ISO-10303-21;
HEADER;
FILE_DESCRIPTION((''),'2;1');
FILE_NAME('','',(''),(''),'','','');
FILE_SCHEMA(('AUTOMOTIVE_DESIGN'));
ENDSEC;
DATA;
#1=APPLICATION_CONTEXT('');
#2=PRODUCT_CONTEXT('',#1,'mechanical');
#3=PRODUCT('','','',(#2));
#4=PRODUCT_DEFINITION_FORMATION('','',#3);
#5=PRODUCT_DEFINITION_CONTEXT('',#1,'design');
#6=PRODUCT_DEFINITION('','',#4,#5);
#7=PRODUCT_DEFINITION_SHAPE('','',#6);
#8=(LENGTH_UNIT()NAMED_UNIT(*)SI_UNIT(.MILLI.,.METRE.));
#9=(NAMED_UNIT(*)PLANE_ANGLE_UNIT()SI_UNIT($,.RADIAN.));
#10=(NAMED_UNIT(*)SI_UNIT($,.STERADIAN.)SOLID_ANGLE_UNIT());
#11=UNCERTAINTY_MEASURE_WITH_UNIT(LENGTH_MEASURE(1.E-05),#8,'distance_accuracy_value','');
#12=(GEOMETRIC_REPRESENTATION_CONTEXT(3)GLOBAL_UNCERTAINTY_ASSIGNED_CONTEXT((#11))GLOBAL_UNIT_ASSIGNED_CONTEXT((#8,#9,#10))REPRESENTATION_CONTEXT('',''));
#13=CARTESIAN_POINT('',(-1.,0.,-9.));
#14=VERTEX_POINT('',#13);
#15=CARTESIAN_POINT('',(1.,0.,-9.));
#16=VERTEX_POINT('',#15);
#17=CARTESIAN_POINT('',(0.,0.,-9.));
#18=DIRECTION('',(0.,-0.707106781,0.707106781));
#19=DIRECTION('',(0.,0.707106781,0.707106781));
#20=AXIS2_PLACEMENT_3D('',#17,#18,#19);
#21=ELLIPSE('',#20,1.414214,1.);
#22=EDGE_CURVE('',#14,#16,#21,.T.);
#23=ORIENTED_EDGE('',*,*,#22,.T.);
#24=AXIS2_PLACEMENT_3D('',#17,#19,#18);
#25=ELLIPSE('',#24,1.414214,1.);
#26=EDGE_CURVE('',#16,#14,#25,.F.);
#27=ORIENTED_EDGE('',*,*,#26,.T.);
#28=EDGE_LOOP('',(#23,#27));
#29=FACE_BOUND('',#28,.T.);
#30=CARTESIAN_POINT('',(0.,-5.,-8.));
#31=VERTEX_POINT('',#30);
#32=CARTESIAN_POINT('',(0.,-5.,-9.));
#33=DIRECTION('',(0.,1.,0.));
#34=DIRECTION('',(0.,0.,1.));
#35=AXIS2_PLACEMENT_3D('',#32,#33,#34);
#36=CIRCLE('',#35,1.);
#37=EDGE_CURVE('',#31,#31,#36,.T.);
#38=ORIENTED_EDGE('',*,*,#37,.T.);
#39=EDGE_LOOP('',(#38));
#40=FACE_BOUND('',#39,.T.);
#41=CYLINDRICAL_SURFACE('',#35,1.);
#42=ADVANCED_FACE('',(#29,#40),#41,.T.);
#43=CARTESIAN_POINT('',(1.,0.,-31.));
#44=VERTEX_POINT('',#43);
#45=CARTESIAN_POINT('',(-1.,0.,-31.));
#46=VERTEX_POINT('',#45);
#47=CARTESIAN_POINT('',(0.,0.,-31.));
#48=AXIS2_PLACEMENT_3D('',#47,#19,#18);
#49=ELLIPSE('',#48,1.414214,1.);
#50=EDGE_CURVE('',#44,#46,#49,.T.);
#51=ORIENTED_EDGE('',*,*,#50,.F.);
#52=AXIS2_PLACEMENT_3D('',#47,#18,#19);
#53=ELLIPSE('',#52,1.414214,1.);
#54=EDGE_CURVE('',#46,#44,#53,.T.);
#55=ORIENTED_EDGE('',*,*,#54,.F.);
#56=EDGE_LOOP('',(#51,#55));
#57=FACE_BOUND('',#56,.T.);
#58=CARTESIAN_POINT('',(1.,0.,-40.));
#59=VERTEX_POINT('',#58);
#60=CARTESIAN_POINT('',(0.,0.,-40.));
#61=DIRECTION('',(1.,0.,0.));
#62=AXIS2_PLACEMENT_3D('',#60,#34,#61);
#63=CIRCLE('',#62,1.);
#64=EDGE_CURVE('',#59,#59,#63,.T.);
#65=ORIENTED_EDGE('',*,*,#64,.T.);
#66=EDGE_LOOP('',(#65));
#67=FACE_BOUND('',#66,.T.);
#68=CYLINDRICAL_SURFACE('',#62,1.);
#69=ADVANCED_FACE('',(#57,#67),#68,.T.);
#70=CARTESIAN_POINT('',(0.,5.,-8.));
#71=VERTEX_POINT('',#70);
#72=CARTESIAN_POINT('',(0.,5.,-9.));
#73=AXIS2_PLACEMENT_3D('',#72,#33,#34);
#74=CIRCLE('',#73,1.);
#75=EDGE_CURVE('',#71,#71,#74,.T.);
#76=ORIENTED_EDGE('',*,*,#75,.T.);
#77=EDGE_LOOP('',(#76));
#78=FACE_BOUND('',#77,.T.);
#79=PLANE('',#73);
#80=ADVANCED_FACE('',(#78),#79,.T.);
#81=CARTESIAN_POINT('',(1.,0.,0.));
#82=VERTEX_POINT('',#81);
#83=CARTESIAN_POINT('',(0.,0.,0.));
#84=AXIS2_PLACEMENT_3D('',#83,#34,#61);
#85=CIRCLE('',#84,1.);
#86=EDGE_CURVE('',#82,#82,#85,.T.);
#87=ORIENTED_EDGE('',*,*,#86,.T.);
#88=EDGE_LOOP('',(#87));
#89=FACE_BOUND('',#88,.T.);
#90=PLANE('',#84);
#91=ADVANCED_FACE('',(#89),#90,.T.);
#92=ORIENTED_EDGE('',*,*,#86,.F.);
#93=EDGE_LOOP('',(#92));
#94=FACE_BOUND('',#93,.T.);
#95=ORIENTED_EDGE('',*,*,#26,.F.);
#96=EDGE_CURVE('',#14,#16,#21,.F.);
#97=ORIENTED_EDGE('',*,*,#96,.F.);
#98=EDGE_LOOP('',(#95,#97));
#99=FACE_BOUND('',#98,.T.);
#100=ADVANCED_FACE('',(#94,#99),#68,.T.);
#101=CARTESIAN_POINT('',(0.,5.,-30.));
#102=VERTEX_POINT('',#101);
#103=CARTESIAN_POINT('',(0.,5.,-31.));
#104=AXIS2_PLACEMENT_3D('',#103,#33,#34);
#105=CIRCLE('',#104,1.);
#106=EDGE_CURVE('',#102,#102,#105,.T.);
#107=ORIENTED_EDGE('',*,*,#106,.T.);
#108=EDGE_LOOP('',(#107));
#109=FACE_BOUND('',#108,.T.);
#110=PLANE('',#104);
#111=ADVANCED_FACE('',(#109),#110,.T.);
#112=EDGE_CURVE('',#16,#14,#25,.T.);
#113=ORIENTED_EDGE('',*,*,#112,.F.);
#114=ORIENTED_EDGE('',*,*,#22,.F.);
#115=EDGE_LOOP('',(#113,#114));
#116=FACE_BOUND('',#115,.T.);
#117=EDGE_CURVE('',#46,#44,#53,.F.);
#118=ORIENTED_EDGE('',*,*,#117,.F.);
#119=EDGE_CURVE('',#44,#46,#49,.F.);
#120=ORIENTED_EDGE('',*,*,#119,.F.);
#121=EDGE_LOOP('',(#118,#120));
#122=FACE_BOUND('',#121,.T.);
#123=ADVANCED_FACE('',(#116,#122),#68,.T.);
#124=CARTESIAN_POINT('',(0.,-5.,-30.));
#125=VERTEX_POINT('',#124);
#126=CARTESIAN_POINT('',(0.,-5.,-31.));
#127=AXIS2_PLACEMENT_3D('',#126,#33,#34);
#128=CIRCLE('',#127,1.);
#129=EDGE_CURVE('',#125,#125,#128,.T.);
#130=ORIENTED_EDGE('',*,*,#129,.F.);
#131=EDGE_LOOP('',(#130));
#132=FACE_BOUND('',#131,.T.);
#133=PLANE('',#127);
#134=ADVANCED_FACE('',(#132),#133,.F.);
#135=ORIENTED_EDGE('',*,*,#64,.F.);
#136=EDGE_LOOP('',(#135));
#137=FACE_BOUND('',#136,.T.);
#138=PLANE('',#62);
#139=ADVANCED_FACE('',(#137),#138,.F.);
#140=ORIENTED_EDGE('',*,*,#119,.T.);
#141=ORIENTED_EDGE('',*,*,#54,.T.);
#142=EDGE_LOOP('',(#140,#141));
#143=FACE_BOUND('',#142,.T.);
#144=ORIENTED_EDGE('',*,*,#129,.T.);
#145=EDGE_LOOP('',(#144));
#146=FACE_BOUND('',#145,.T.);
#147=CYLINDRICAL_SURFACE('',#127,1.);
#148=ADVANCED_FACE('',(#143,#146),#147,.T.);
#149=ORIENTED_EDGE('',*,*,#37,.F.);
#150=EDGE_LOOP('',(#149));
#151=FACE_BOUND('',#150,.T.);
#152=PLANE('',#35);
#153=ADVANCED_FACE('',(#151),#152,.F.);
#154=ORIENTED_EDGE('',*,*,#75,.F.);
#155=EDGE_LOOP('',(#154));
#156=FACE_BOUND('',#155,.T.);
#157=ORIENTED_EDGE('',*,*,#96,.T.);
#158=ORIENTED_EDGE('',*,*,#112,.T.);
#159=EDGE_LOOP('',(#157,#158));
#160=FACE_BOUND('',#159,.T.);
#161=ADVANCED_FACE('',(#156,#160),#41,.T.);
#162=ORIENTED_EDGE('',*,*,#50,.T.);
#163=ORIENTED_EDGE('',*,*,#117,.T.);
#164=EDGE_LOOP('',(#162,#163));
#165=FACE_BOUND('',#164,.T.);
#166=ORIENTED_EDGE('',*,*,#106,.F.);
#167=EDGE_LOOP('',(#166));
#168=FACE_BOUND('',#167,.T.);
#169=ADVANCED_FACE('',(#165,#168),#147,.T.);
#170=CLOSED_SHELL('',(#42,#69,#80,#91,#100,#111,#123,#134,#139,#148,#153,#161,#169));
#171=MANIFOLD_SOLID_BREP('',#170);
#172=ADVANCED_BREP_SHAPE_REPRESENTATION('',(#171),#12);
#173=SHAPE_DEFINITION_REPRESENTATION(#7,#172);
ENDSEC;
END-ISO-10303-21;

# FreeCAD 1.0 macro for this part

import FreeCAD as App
import Part
import Sketcher
from FreeCAD import Vector

doc = App.newDocument("Part")
body = doc.addObject("PartDesign::Body", "Body")

# Sketch on XY plane
sketch1 = body.newObject("Sketcher::SketchObject", "Sketch")
sketch1.AttachmentSupport = (doc.getObject("XY_Plane"), [""])
sketch1.MapMode = "FlatFace"
sketch1.addGeometry(Part.Circle(Vector(0, 0, 0), Vector(0, 0, 1), 1), False)
sketch1.addConstraint(Sketcher.Constraint("Coincident", 0, 3, -1, 1))
sketch1.addConstraint(Sketcher.Constraint("Diameter", 0, 2.0))
pad1 = body.newObject("PartDesign::Pad", "Pad")
pad1.Profile = sketch1
pad1.Length = 40
pad1.Reversed = True

# Sketch on XZ plane
sketch2 = body.newObject("Sketcher::SketchObject", "Sketch001")
sketch2.AttachmentSupport = (doc.getObject("XZ_Plane"), [""])
sketch2.MapMode = "FlatFace"
sketch2.addGeometry(Part.Circle(Vector(0, -9, 0), Vector(0, 0, 1), 1), False)
sketch2.addGeometry(Part.Circle(Vector(0, -31, 0), Vector(0, 0, 1), 1), False)
sketch2.addConstraint(Sketcher.Constraint("Equal", 0, 1))
sketch2.addConstraint(Sketcher.Constraint("PointOnObject", 0, 3, -2))
sketch2.addConstraint(Sketcher.Constraint("PointOnObject", 1, 3, -2))
sketch2.addConstraint(Sketcher.Constraint("Diameter", 0, 2.0))
sketch2.addConstraint(Sketcher.Constraint("DistanceY", 0, 3, -1, 1, 9.0))
sketch2.addConstraint(Sketcher.Constraint("DistanceY", 1, 3, -1, 1, 31.0))
pad2 = body.newObject("PartDesign::Pad", "Pad001")
pad2.Profile = sketch2
pad2.Type = "TwoLengths"
pad2.Length = 5
pad2.Length2 = 5
pad2.Reversed = True

doc.recompute()
